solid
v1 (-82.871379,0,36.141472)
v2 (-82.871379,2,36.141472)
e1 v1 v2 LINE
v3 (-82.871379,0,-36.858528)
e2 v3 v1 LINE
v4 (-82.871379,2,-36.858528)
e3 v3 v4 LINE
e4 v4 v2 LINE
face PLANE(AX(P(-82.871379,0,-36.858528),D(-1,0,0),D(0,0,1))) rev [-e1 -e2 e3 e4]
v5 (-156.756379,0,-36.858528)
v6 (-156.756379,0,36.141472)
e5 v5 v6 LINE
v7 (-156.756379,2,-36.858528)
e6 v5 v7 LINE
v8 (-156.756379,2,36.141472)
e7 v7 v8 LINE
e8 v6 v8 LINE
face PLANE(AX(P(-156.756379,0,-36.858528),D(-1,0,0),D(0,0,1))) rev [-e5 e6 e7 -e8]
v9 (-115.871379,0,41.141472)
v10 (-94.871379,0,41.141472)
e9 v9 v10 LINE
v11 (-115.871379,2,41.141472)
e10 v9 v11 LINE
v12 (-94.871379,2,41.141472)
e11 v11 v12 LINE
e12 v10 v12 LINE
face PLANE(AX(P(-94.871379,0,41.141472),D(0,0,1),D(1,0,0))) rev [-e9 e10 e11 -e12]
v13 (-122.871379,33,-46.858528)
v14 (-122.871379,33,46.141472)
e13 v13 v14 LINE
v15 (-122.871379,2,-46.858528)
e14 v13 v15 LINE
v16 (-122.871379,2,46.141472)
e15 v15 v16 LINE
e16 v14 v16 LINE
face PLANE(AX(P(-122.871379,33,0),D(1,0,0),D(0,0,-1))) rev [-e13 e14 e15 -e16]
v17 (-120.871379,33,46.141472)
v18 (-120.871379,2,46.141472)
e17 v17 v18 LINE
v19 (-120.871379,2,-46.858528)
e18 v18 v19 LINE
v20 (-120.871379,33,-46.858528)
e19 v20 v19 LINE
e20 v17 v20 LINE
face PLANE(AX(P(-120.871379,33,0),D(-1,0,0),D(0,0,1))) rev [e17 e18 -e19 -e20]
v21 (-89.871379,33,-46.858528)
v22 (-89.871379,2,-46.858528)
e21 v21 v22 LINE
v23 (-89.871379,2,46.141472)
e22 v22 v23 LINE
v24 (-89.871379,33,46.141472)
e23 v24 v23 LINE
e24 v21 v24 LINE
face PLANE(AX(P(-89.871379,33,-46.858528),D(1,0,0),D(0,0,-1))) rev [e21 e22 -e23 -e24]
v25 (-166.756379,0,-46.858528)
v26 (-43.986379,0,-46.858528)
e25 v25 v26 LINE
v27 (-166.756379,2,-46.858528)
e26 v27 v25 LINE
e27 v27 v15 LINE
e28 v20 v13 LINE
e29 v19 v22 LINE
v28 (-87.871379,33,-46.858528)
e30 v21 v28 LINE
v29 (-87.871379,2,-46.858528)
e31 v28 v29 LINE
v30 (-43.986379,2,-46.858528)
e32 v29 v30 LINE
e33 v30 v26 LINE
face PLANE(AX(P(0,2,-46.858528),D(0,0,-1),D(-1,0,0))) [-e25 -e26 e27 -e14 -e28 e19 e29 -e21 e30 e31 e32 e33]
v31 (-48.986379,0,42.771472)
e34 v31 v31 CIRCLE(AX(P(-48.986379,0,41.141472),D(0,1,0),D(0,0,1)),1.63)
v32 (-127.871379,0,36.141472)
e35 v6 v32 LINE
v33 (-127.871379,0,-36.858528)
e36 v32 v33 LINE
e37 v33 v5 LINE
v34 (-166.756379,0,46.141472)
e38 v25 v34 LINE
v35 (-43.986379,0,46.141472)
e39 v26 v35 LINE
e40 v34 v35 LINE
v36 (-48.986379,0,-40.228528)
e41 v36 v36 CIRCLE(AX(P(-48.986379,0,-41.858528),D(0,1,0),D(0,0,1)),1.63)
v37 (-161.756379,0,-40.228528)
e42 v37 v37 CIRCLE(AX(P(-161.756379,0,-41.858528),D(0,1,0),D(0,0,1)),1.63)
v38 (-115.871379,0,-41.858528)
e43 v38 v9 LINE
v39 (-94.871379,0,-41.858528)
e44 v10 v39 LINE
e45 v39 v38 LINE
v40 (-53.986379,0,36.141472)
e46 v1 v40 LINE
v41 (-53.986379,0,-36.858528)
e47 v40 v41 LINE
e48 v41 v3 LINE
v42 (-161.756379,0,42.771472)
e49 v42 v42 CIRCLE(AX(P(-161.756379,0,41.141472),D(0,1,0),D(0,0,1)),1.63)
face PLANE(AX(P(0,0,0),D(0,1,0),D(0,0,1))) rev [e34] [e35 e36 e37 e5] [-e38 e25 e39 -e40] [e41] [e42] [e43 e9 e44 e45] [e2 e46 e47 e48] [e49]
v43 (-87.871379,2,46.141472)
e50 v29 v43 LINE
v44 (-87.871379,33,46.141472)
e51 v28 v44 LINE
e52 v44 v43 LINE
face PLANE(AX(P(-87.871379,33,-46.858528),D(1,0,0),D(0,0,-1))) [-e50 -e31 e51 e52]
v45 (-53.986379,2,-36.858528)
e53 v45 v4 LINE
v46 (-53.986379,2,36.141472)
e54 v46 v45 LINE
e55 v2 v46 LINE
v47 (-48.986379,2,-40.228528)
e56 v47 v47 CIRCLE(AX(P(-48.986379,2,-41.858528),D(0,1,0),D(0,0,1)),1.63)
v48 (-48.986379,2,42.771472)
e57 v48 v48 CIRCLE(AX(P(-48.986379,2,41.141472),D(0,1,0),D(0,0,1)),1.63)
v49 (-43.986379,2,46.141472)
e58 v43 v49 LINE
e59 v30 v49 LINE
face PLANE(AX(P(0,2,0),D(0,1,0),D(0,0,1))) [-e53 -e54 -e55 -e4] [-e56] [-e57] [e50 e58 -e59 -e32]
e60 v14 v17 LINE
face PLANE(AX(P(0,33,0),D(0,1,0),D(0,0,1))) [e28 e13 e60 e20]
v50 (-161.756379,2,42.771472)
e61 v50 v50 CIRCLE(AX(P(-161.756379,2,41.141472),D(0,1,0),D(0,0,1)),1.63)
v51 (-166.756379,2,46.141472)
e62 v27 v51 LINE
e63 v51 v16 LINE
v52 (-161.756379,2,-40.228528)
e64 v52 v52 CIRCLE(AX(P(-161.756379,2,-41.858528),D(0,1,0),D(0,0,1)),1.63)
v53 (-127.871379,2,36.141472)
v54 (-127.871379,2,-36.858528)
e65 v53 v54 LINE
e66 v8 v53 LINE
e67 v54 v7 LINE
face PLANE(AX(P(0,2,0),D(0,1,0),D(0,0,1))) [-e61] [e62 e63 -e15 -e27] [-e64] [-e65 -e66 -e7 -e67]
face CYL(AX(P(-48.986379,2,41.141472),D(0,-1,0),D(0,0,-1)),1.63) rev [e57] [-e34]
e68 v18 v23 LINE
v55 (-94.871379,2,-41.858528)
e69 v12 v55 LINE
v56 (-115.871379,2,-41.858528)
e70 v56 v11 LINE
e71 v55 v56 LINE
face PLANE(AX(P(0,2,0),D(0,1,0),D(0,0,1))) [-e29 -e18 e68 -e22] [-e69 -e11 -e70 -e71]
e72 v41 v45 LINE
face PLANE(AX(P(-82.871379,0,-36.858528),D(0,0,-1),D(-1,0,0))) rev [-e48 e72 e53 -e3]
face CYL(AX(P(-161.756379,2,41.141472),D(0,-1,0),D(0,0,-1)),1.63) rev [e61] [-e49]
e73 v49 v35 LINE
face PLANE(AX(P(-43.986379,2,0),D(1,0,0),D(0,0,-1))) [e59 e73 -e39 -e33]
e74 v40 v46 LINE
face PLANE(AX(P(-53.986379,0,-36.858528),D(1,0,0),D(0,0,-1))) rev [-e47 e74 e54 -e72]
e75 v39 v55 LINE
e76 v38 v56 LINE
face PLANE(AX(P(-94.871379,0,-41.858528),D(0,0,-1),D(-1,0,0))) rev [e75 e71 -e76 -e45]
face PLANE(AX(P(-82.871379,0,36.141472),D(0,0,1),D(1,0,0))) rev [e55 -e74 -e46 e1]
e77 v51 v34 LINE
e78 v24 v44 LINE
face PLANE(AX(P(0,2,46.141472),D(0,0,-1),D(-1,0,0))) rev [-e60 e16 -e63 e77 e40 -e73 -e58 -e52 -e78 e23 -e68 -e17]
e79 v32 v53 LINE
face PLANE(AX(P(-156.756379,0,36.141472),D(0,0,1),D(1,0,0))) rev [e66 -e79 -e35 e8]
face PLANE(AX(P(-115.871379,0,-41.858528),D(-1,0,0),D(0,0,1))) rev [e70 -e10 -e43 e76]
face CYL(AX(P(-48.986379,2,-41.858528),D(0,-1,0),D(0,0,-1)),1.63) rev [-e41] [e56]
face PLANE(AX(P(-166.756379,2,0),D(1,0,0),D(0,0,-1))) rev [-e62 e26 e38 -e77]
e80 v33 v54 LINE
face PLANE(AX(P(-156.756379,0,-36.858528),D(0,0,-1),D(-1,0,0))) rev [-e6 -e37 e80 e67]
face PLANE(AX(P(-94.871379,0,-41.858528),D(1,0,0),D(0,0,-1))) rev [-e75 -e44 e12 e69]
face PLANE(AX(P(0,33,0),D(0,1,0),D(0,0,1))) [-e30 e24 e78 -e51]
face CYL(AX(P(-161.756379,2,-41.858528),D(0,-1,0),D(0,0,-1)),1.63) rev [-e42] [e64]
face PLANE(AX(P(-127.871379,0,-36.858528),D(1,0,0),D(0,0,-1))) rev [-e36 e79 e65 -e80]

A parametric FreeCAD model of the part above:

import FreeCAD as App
import Part
import Sketcher


def add_polygon(sketch, points):
    """Adds a closed chain of lines whose ends are joined by coincident constraints."""
    first, n = sketch.GeometryCount, len(points)
    for a, b in zip(points, points[1:] + points[:1]):
        sketch.addGeometry(Part.LineSegment(App.Vector(*a, 0), App.Vector(*b, 0)), False)
    for i in range(n):
        sketch.addConstraint(Sketcher.Constraint("Coincident", first + i, 2, first + (i + 1) % n, 1))

doc = App.newDocument("Part")
body = doc.addObject("PartDesign::Body", "Body")

sketch1 = body.newObject("Sketcher::SketchObject", "Sketch")
sketch1.AttachmentSupport = (doc.getObject("XZ_Plane"), [""])
sketch1.MapMode = "FlatFace"
add_polygon(sketch1, [(-166.756379, -46.858528), (-166.756379, 46.141472), (-43.986379, 46.141472), (-43.986379, -46.858528)])
sketch1.addGeometry(Part.Circle(App.Vector(-161.756379, 41.141472, 0), App.Vector(0, 0, 1), 1.63), False)
sketch1.addGeometry(Part.Circle(App.Vector(-48.986379, 41.141472, 0), App.Vector(0, 0, 1), 1.63), False)
sketch1.addGeometry(Part.Circle(App.Vector(-161.756379, -41.858528, 0), App.Vector(0, 0, 1), 1.63), False)
sketch1.addGeometry(Part.Circle(App.Vector(-48.986379, -41.858528, 0), App.Vector(0, 0, 1), 1.63), False)
sketch1.addConstraint(Sketcher.Constraint("Vertical", 0))
sketch1.addConstraint(Sketcher.Constraint("Horizontal", 1))
sketch1.addConstraint(Sketcher.Constraint("Vertical", 2))
sketch1.addConstraint(Sketcher.Constraint("Horizontal", 3))
sketch1.addConstraint(Sketcher.Constraint("Equal", 4, 5))
sketch1.addConstraint(Sketcher.Constraint("Equal", 5, 6))
sketch1.addConstraint(Sketcher.Constraint("Equal", 6, 7))
sketch1.addConstraint(Sketcher.Constraint("Horizontal", 4, 3, 5, 3))
sketch1.addConstraint(Sketcher.Constraint("Horizontal", 6, 3, 7, 3))
sketch1.addConstraint(Sketcher.Constraint("Vertical", 4, 3, 6, 3))
sketch1.addConstraint(Sketcher.Constraint("Vertical", 5, 3, 7, 3))
sketch1.addConstraint(Sketcher.Constraint("Diameter", 4, 3.26))
sketch1.addConstraint(Sketcher.Constraint("DistanceY", 0, 1, 0, 2, 93.0))
sketch1.addConstraint(Sketcher.Constraint("DistanceY", 6, 3, 4, 3, 83.0))
sketch1.addConstraint(Sketcher.Constraint("DistanceX", 0, 2, 4, 3, 5.0))
sketch1.addConstraint(Sketcher.Constraint("DistanceY", 4, 3, 0, 2, 5.0))
sketch1.addConstraint(Sketcher.Constraint("DistanceX", 5, 3, 1, 2, 5.0))
sketch1.addConstraint(Sketcher.Constraint("DistanceX", 1, 1, 1, 2, 122.77))
sketch1.addConstraint(Sketcher.Constraint("DistanceX", 4, 3, -1, 1, 161.756379))
sketch1.addConstraint(Sketcher.Constraint("DistanceY", -1, 1, 4, 3, 41.141472))
pad1 = body.newObject("PartDesign::Pad", "Pad")
pad1.Profile = sketch1
pad1.Length = 2
pad1.Reversed = True

sketch2 = body.newObject("Sketcher::SketchObject", "Sketch001")
sketch2.AttachmentSupport = (doc.getObject("XZ_Plane"), [""])
sketch2.MapMode = "FlatFace"
sketch2.AttachmentOffset = App.Placement(App.Vector(0, 0, -2), App.Rotation())
add_polygon(sketch2, [(-122.871379, -46.858528), (-122.871379, 46.141472), (-120.871379, 46.141472), (-120.871379, -46.858528)])
add_polygon(sketch2, [(-89.871379, -46.858528), (-89.871379, 46.141472), (-87.871379, 46.141472), (-87.871379, -46.858528)])
sketch2.addConstraint(Sketcher.Constraint("Vertical", 0))
sketch2.addConstraint(Sketcher.Constraint("Horizontal", 1))
sketch2.addConstraint(Sketcher.Constraint("Vertical", 2))
sketch2.addConstraint(Sketcher.Constraint("Horizontal", 3))
sketch2.addConstraint(Sketcher.Constraint("Vertical", 4))
sketch2.addConstraint(Sketcher.Constraint("Horizontal", 5))
sketch2.addConstraint(Sketcher.Constraint("Vertical", 6))
sketch2.addConstraint(Sketcher.Constraint("Horizontal", 7))
sketch2.addConstraint(Sketcher.Constraint("Horizontal", 1, 2, 4, 2))
sketch2.addConstraint(Sketcher.Constraint("Horizontal", 3, 2, 6, 2))
sketch2.addConstraint(Sketcher.Constraint("Equal", 3, 5))
sketch2.addConstraint(Sketcher.Constraint("DistanceX", 1, 1, 1, 2, 2.0))
sketch2.addConstraint(Sketcher.Constraint("DistanceY", 0, 1, 0, 2, 93.0))
sketch2.addConstraint(Sketcher.Constraint("DistanceX", 1, 2, 4, 2, 31.0))
sketch2.addConstraint(Sketcher.Constraint("DistanceX", 0, 2, -1, 1, 122.871379))
sketch2.addConstraint(Sketcher.Constraint("DistanceY", -1, 1, 0, 2, 46.141472))
pad2 = body.newObject("PartDesign::Pad", "Pad001")
pad2.Profile = sketch2
pad2.Length = 31
pad2.Reversed = True

sketch3 = body.newObject("Sketcher::SketchObject", "Sketch002")
sketch3.AttachmentSupport = (doc.getObject("XZ_Plane"), [""])
sketch3.MapMode = "FlatFace"
sketch3.AttachmentOffset = App.Placement(App.Vector(0, 0, -2), App.Rotation())
add_polygon(sketch3, [(-156.756379, -36.858528), (-156.756379, 36.141472), (-127.871379, 36.141472), (-127.871379, -36.858528)])
add_polygon(sketch3, [(-115.871379, -41.858528), (-115.871379, 41.141472), (-94.871379, 41.141472), (-94.871379, -41.858528)])
add_polygon(sketch3, [(-82.871379, -36.858528), (-82.871379, 36.141472), (-53.986379, 36.141472), (-53.986379, -36.858528)])
sketch3.addConstraint(Sketcher.Constraint("Vertical", 0))
sketch3.addConstraint(Sketcher.Constraint("Horizontal", 1))
sketch3.addConstraint(Sketcher.Constraint("Vertical", 2))
sketch3.addConstraint(Sketcher.Constraint("Horizontal", 3))
sketch3.addConstraint(Sketcher.Constraint("Vertical", 4))
sketch3.addConstraint(Sketcher.Constraint("Horizontal", 5))
sketch3.addConstraint(Sketcher.Constraint("Vertical", 6))
sketch3.addConstraint(Sketcher.Constraint("Horizontal", 7))
sketch3.addConstraint(Sketcher.Constraint("Vertical", 8))
sketch3.addConstraint(Sketcher.Constraint("Horizontal", 9))
sketch3.addConstraint(Sketcher.Constraint("Vertical", 10))
sketch3.addConstraint(Sketcher.Constraint("Horizontal", 11))
sketch3.addConstraint(Sketcher.Constraint("Horizontal", 1, 2, 8, 2))
sketch3.addConstraint(Sketcher.Constraint("Horizontal", 3, 2, 10, 2))
sketch3.addConstraint(Sketcher.Constraint("Equal", 3, 9))
sketch3.addConstraint(Sketcher.Constraint("DistanceX", 5, 1, 5, 2, 21.0))
sketch3.addConstraint(Sketcher.Constraint("DistanceY", 0, 1, 0, 2, 73.0))
sketch3.addConstraint(Sketcher.Constraint("DistanceY", 4, 1, 4, 2, 83.0))
sketch3.addConstraint(Sketcher.Constraint("DistanceX", 1, 2, 4, 2, 12.0))
sketch3.addConstraint(Sketcher.Constraint("DistanceY", 1, 2, 4, 2, 5.0))
sketch3.addConstraint(Sketcher.Constraint("DistanceX", 5, 2, 8, 2, 12.0))
sketch3.addConstraint(Sketcher.Constraint("DistanceX", 1, 1, 1, 2, 28.885))
sketch3.addConstraint(Sketcher.Constraint("DistanceX", 0, 2, -1, 1, 156.756379))
sketch3.addConstraint(Sketcher.Constraint("DistanceY", -1, 1, 0, 2, 36.141472))
pocket1 = body.newObject("PartDesign::Pocket", "Pocket")
pocket1.Profile = sketch3
pocket1.Type = "ThroughAll"
pocket1.Reversed = True

doc.recompute()
